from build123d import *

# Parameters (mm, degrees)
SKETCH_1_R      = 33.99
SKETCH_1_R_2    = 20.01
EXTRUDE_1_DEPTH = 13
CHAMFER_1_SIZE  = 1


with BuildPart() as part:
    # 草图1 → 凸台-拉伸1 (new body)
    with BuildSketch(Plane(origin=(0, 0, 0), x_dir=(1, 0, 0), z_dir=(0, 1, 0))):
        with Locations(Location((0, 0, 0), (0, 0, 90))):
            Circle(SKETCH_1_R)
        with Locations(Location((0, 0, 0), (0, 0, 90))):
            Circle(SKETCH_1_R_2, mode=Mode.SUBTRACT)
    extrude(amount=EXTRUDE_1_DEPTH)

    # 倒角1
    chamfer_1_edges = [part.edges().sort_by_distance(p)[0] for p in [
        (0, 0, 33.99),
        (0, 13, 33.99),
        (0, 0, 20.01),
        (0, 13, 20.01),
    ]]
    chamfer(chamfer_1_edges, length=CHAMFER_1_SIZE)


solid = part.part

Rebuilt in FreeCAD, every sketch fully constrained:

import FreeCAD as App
import Part
import Sketcher
from FreeCAD import Vector


def edges_at(feature, points):
    """Names of the edges that pass closest to the given points."""
    edges = feature.Shape.Edges
    near = lambda p: min(range(len(edges)), key=lambda i: edges[i].distToShape(Part.Vertex(*p))[0])
    return sorted({f"Edge{near(p) + 1}" for p in points})

doc = App.newDocument("Part")
params = doc.addObject("Spreadsheet::Sheet", "Params")
for row, (alias, value) in enumerate([
    ("sketch1_diameter", "67.98 mm"),
    ("sketch1_diameter2", "40.02 mm"),
    ("pad1_length", "13 mm"),
    ("chamfer_size", "1 mm"),
], start=1):
    params.set(f"A{row}", alias)
    params.set(f"B{row}", "=" + value)
    params.setAlias(f"B{row}", alias)

body = doc.addObject("PartDesign::Body", "Body")

sketch1 = body.newObject("Sketcher::SketchObject", "Sketch")
sketch1.AttachmentSupport = (doc.getObject("XZ_Plane"), [""])
sketch1.MapMode = "FlatFace"
sketch1.addGeometry([
    Part.Circle(Vector(0, 0, 0), Vector(0, 0, 1), 34),
    Part.Circle(Vector(0, 0, 0), Vector(0, 0, 1), 20),
], False)
sketch1.addConstraint([
    Sketcher.Constraint("Coincident", 0, 3, -1, 1),
    Sketcher.Constraint("Coincident", 1, 3, -1, 1),
    Sketcher.Constraint("Diameter", 0, 67.98),
    Sketcher.Constraint("Diameter", 1, 40.02),
])
sketch1.setExpression("Constraints[2]", "Params.sketch1_diameter")
sketch1.setExpression("Constraints[3]", "Params.sketch1_diameter2")
pad1 = body.newObject("PartDesign::Pad", "Pad")
pad1.Profile = sketch1
pad1.setExpression("Length", "Params.pad1_length")
pad1.Reversed = True
doc.recompute()

chamfer = body.newObject("PartDesign::Chamfer", "Chamfer")
chamfer.Base = (pad1, edges_at(pad1, [
    (0, 0, 33.99),
    (0, 13, 33.99),
    (0, 0, 20.01),
    (0, 13, 20.01),
]))
chamfer.setExpression("Size", "Params.chamfer_size")

doc.recompute()
